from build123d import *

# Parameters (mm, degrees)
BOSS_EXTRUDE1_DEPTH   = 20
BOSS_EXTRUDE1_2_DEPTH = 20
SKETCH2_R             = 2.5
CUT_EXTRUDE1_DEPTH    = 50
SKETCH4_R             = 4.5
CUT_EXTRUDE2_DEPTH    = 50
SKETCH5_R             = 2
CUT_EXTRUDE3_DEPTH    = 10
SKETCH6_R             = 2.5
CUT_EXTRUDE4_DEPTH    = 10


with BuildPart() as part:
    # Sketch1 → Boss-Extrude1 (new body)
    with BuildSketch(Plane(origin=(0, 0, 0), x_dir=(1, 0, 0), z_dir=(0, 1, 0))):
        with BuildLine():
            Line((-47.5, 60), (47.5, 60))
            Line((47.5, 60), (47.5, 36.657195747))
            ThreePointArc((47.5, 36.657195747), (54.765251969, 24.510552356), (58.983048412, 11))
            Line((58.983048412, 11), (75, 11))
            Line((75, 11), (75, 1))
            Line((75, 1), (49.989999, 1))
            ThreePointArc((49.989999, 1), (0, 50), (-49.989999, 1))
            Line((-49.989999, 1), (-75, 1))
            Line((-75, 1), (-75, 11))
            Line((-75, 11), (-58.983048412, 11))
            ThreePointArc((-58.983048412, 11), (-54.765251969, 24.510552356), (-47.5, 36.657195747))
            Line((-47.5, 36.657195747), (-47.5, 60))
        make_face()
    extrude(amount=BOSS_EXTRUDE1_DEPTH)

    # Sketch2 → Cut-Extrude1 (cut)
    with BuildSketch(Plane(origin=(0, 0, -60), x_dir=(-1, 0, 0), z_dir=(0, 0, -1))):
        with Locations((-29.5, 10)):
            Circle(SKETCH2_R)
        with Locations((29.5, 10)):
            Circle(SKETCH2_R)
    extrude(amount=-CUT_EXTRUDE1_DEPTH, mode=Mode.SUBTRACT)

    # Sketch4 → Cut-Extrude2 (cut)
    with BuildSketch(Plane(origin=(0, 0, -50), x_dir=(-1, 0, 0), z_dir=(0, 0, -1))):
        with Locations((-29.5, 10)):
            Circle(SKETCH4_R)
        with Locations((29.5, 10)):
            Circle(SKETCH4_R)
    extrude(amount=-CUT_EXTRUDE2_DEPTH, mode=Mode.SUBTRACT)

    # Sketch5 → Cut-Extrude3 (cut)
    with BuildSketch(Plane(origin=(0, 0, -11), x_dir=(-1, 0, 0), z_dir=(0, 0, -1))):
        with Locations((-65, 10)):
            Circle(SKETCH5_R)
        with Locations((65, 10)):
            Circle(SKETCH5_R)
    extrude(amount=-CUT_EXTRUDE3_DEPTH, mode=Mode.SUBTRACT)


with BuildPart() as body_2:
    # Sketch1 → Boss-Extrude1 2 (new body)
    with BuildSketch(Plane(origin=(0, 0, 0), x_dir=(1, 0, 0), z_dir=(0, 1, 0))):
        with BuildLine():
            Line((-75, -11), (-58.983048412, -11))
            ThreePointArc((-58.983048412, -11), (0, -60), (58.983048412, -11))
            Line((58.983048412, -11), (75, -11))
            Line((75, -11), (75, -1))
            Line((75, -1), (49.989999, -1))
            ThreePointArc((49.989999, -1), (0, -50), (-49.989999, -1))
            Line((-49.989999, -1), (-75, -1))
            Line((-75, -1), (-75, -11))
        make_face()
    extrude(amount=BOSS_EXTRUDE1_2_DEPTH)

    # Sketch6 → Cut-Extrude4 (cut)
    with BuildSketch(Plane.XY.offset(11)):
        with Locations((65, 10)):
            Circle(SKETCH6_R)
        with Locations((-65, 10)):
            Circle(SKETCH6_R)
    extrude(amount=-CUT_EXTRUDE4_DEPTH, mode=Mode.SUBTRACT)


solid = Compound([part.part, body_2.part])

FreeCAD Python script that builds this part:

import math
import FreeCAD as App
import Part
import Sketcher
from FreeCAD import Vector
Q = App.Units.Quantity

doc = App.newDocument("Part")
body = doc.addObject("PartDesign::Body", "Body")

sketch1 = body.newObject("Sketcher::SketchObject", "Sketch")
sketch1.AttachmentSupport = (doc.getObject("XZ_Plane"), [""])
sketch1.MapMode = "FlatFace"
sketch1.addGeometry(Part.LineSegment(Vector(48, -60, 0), Vector(-48, -60, 0)), False)
sketch1.addGeometry(Part.LineSegment(Vector(-48, -60, 0), Vector(-48, -37, 0)), False)
sketch1.addGeometry(Part.ArcOfCircle(Part.Circle(Vector(0, 0, 0), Vector(0, 0, 1), 60), math.radians(-169), math.radians(-142)), False)
sketch1.addGeometry(Part.LineSegment(Vector(-59, -11, 0), Vector(-75, -11, 0)), False)
sketch1.addGeometry(Part.LineSegment(Vector(-75, -11, 0), Vector(-75, -1, 0)), False)
sketch1.addGeometry(Part.LineSegment(Vector(-75, -1, 0), Vector(-50, -1, 0)), False)
sketch1.addGeometry(Part.ArcOfCircle(Part.Circle(Vector(0, 0, 0), Vector(0, 0, 1), 50), math.radians(-179), math.radians(-1)), False)
sketch1.addGeometry(Part.LineSegment(Vector(50, -1, 0), Vector(75, -1, 0)), False)
sketch1.addGeometry(Part.LineSegment(Vector(75, -1, 0), Vector(75, -11, 0)), False)
sketch1.addGeometry(Part.LineSegment(Vector(75, -11, 0), Vector(59, -11, 0)), False)
sketch1.addGeometry(Part.ArcOfCircle(Part.Circle(Vector(0, 0, 0), Vector(0, 0, 1), 60), math.radians(-38), math.radians(-11)), False)
sketch1.addGeometry(Part.LineSegment(Vector(48, -37, 0), Vector(48, -60, 0)), False)
sketch1.addConstraint(Sketcher.Constraint("Coincident", 0, 2, 1, 1))
sketch1.addConstraint(Sketcher.Constraint("Coincident", 1, 2, 2, 2))
sketch1.addConstraint(Sketcher.Constraint("Coincident", 2, 1, 3, 1))
sketch1.addConstraint(Sketcher.Constraint("Coincident", 3, 2, 4, 1))
sketch1.addConstraint(Sketcher.Constraint("Coincident", 4, 2, 5, 1))
sketch1.addConstraint(Sketcher.Constraint("Coincident", 5, 2, 6, 1))
sketch1.addConstraint(Sketcher.Constraint("Coincident", 6, 2, 7, 1))
sketch1.addConstraint(Sketcher.Constraint("Coincident", 7, 2, 8, 1))
sketch1.addConstraint(Sketcher.Constraint("Coincident", 8, 2, 9, 1))
sketch1.addConstraint(Sketcher.Constraint("Coincident", 9, 2, 10, 2))
sketch1.addConstraint(Sketcher.Constraint("Coincident", 10, 1, 11, 1))
sketch1.addConstraint(Sketcher.Constraint("Coincident", 11, 2, 0, 1))
sketch1.addConstraint(Sketcher.Constraint("Horizontal", 0))
sketch1.addConstraint(Sketcher.Constraint("Vertical", 1))
sketch1.addConstraint(Sketcher.Constraint("Horizontal", 3))
sketch1.addConstraint(Sketcher.Constraint("Vertical", 4))
sketch1.addConstraint(Sketcher.Constraint("Horizontal", 5))
sketch1.addConstraint(Sketcher.Constraint("Horizontal", 7))
sketch1.addConstraint(Sketcher.Constraint("Vertical", 8))
sketch1.addConstraint(Sketcher.Constraint("Horizontal", 9))
sketch1.addConstraint(Sketcher.Constraint("Vertical", 11))
sketch1.addConstraint(Sketcher.Constraint("Coincident", 2, 3, -1, 1))
sketch1.addConstraint(Sketcher.Constraint("Coincident", 6, 3, -1, 1))
sketch1.addConstraint(Sketcher.Constraint("Coincident", 10, 3, -1, 1))
sketch1.addConstraint(Sketcher.Constraint("Equal", 2, 10))
sketch1.addConstraint(Sketcher.Constraint("Symmetric", 4, 2, 7, 2, -2))
sketch1.addConstraint(Sketcher.Constraint("Horizontal", 3, 2, 8, 2))
sketch1.addConstraint(Sketcher.Constraint("Horizontal", 1, 2, 10, 1))
sketch1.addConstraint(Sketcher.Constraint("Radius", 2, Q("60 mm")))
sketch1.addConstraint(Sketcher.Constraint("Radius", 6, Q("50 mm")))
sketch1.addConstraint(Sketcher.Constraint("DistanceX", 0, 2, 0, 1, Q("95 mm")))
sketch1.addConstraint(Sketcher.Constraint("DistanceY", 4, 1, 4, 2, Q("10 mm")))
sketch1.addConstraint(Sketcher.Constraint("DistanceY", 0, 2, -1, 1, Q("60 mm")))
sketch1.addConstraint(Sketcher.Constraint("DistanceY", 2, 1, -1, 1, Q("11 mm")))
sketch1.addConstraint(Sketcher.Constraint("DistanceX", 3, 2, -1, 1, Q("75 mm")))
pad1 = body.newObject("PartDesign::Pad", "Pad")
pad1.Profile = sketch1
pad1.Length = 20
pad1.Reversed = True

sketch2 = body.newObject("Sketcher::SketchObject", "Sketch001")
sketch2.AttachmentSupport = (doc.getObject("XY_Plane"), [""])
sketch2.MapMode = "FlatFace"
sketch2.AttachmentOffset = App.Placement(Vector(0, 0, -60), App.Rotation())
sketch2.addGeometry(Part.Circle(Vector(29.5, 10, 0), Vector(0, 0, 1), 2.5), False)
sketch2.addGeometry(Part.Circle(Vector(-29.5, 10, 0), Vector(0, 0, 1), 2.5), False)
sketch2.addConstraint(Sketcher.Constraint("Equal", 0, 1))
sketch2.addConstraint(Sketcher.Constraint("Symmetric", 0, 3, 1, 3, -2))
sketch2.addConstraint(Sketcher.Constraint("Diameter", 0, Q("5 mm")))
sketch2.addConstraint(Sketcher.Constraint("DistanceY", -1, 1, 0, 3, Q("10 mm")))
sketch2.addConstraint(Sketcher.Constraint("DistanceX", 1, 3, 0, 3, Q("59 mm")))
pocket1 = body.newObject("PartDesign::Pocket", "Pocket")
pocket1.Profile = sketch2
pocket1.Length = 50
pocket1.Reversed = True

sketch3 = body.newObject("Sketcher::SketchObject", "Sketch002")
sketch3.AttachmentSupport = (doc.getObject("XY_Plane"), [""])
sketch3.MapMode = "FlatFace"
sketch3.AttachmentOffset = App.Placement(Vector(0, 0, -50), App.Rotation())
sketch3.addGeometry(Part.Circle(Vector(29.5, 10, 0), Vector(0, 0, 1), 4.5), False)
sketch3.addGeometry(Part.Circle(Vector(-29.5, 10, 0), Vector(0, 0, 1), 4.5), False)
sketch3.addConstraint(Sketcher.Constraint("Equal", 0, 1))
sketch3.addConstraint(Sketcher.Constraint("Symmetric", 0, 3, 1, 3, -2))
sketch3.addConstraint(Sketcher.Constraint("Diameter", 0, Q("9 mm")))
sketch3.addConstraint(Sketcher.Constraint("DistanceY", -1, 1, 0, 3, Q("10 mm")))
sketch3.addConstraint(Sketcher.Constraint("DistanceX", 1, 3, 0, 3, Q("59 mm")))
pocket2 = body.newObject("PartDesign::Pocket", "Pocket001")
pocket2.Profile = sketch3
pocket2.Length = 50
pocket2.Reversed = True

sketch4 = body.newObject("Sketcher::SketchObject", "Sketch003")
sketch4.AttachmentSupport = (doc.getObject("XY_Plane"), [""])
sketch4.MapMode = "FlatFace"
sketch4.AttachmentOffset = App.Placement(Vector(0, 0, -11), App.Rotation())
sketch4.addGeometry(Part.Circle(Vector(65, 10, 0), Vector(0, 0, 1), 2), False)
sketch4.addGeometry(Part.Circle(Vector(-65, 10, 0), Vector(0, 0, 1), 2), False)
sketch4.addConstraint(Sketcher.Constraint("Equal", 0, 1))
sketch4.addConstraint(Sketcher.Constraint("Symmetric", 0, 3, 1, 3, -2))
sketch4.addConstraint(Sketcher.Constraint("Diameter", 0, Q("4 mm")))
sketch4.addConstraint(Sketcher.Constraint("DistanceX", -1, 1, 0, 3, Q("65 mm")))
sketch4.addConstraint(Sketcher.Constraint("DistanceY", -1, 1, 0, 3, Q("10 mm")))
pocket3 = body.newObject("PartDesign::Pocket", "Pocket002")
pocket3.Profile = sketch4
pocket3.Length = 10
pocket3.Reversed = True
body2 = doc.addObject("PartDesign::Body", "Body001")

sketch5 = body2.newObject("Sketcher::SketchObject", "Sketch004")
sketch5.AttachmentSupport = (doc.getObject("XZ_Plane001"), [""])
sketch5.MapMode = "FlatFace"
sketch5.addGeometry(Part.LineSegment(Vector(-75, 11, 0), Vector(-59, 11, 0)), False)
sketch5.addGeometry(Part.ArcOfCircle(Part.Circle(Vector(0, 0, 0), Vector(0, 0, 1), 60), math.radians(11), math.radians(169)), False)
sketch5.addGeometry(Part.LineSegment(Vector(59, 11, 0), Vector(75, 11, 0)), False)
sketch5.addGeometry(Part.LineSegment(Vector(75, 11, 0), Vector(75, 1, 0)), False)
sketch5.addGeometry(Part.LineSegment(Vector(75, 1, 0), Vector(50, 1, 0)), False)
sketch5.addGeometry(Part.ArcOfCircle(Part.Circle(Vector(0, 0, 0), Vector(0, 0, 1), 50), math.radians(1), math.radians(179)), False)
sketch5.addGeometry(Part.LineSegment(Vector(-50, 1, 0), Vector(-75, 1, 0)), False)
sketch5.addGeometry(Part.LineSegment(Vector(-75, 1, 0), Vector(-75, 11, 0)), False)
sketch5.addConstraint(Sketcher.Constraint("Coincident", 0, 2, 1, 2))
sketch5.addConstraint(Sketcher.Constraint("Coincident", 1, 1, 2, 1))
sketch5.addConstraint(Sketcher.Constraint("Coincident", 2, 2, 3, 1))
sketch5.addConstraint(Sketcher.Constraint("Coincident", 3, 2, 4, 1))
sketch5.addConstraint(Sketcher.Constraint("Coincident", 4, 2, 5, 1))
sketch5.addConstraint(Sketcher.Constraint("Coincident", 5, 2, 6, 1))
sketch5.addConstraint(Sketcher.Constraint("Coincident", 6, 2, 7, 1))
sketch5.addConstraint(Sketcher.Constraint("Coincident", 7, 2, 0, 1))
sketch5.addConstraint(Sketcher.Constraint("Horizontal", 0))
sketch5.addConstraint(Sketcher.Constraint("Horizontal", 2))
sketch5.addConstraint(Sketcher.Constraint("Vertical", 3))
sketch5.addConstraint(Sketcher.Constraint("Horizontal", 4))
sketch5.addConstraint(Sketcher.Constraint("Horizontal", 6))
sketch5.addConstraint(Sketcher.Constraint("Vertical", 7))
sketch5.addConstraint(Sketcher.Constraint("Coincident", 1, 3, -1, 1))
sketch5.addConstraint(Sketcher.Constraint("Coincident", 5, 3, -1, 1))
sketch5.addConstraint(Sketcher.Constraint("Symmetric", 3, 2, 6, 2, -2))
sketch5.addConstraint(Sketcher.Constraint("Horizontal", 0, 2, 1, 1))
sketch5.addConstraint(Sketcher.Constraint("Radius", 1, Q("60 mm")))
sketch5.addConstraint(Sketcher.Constraint("Radius", 5, Q("50 mm")))
sketch5.addConstraint(Sketcher.Constraint("DistanceY", 3, 2, 3, 1, Q("10 mm")))
sketch5.addConstraint(Sketcher.Constraint("DistanceY", -1, 1, 0, 2, Q("11 mm")))
sketch5.addConstraint(Sketcher.Constraint("DistanceX", -1, 1, 2, 2, Q("75 mm")))
pad2 = body2.newObject("PartDesign::Pad", "Pad001")
pad2.Profile = sketch5
pad2.Length = 20
pad2.Reversed = True

sketch6 = body2.newObject("Sketcher::SketchObject", "Sketch005")
sketch6.AttachmentSupport = (doc.getObject("XY_Plane001"), [""])
sketch6.MapMode = "FlatFace"
sketch6.AttachmentOffset = App.Placement(Vector(0, 0, 11), App.Rotation())
sketch6.addGeometry(Part.Circle(Vector(65, 10, 0), Vector(0, 0, 1), 2.5), False)
sketch6.addGeometry(Part.Circle(Vector(-65, 10, 0), Vector(0, 0, 1), 2.5), False)
sketch6.addConstraint(Sketcher.Constraint("Equal", 0, 1))
sketch6.addConstraint(Sketcher.Constraint("Symmetric", 0, 3, 1, 3, -2))
sketch6.addConstraint(Sketcher.Constraint("Diameter", 0, Q("5 mm")))
sketch6.addConstraint(Sketcher.Constraint("DistanceX", -1, 1, 0, 3, Q("65 mm")))
sketch6.addConstraint(Sketcher.Constraint("DistanceY", -1, 1, 0, 3, Q("10 mm")))
pocket4 = body2.newObject("PartDesign::Pocket", "Pocket003")
pocket4.Profile = sketch6
pocket4.Length = 10

doc.recompute()
